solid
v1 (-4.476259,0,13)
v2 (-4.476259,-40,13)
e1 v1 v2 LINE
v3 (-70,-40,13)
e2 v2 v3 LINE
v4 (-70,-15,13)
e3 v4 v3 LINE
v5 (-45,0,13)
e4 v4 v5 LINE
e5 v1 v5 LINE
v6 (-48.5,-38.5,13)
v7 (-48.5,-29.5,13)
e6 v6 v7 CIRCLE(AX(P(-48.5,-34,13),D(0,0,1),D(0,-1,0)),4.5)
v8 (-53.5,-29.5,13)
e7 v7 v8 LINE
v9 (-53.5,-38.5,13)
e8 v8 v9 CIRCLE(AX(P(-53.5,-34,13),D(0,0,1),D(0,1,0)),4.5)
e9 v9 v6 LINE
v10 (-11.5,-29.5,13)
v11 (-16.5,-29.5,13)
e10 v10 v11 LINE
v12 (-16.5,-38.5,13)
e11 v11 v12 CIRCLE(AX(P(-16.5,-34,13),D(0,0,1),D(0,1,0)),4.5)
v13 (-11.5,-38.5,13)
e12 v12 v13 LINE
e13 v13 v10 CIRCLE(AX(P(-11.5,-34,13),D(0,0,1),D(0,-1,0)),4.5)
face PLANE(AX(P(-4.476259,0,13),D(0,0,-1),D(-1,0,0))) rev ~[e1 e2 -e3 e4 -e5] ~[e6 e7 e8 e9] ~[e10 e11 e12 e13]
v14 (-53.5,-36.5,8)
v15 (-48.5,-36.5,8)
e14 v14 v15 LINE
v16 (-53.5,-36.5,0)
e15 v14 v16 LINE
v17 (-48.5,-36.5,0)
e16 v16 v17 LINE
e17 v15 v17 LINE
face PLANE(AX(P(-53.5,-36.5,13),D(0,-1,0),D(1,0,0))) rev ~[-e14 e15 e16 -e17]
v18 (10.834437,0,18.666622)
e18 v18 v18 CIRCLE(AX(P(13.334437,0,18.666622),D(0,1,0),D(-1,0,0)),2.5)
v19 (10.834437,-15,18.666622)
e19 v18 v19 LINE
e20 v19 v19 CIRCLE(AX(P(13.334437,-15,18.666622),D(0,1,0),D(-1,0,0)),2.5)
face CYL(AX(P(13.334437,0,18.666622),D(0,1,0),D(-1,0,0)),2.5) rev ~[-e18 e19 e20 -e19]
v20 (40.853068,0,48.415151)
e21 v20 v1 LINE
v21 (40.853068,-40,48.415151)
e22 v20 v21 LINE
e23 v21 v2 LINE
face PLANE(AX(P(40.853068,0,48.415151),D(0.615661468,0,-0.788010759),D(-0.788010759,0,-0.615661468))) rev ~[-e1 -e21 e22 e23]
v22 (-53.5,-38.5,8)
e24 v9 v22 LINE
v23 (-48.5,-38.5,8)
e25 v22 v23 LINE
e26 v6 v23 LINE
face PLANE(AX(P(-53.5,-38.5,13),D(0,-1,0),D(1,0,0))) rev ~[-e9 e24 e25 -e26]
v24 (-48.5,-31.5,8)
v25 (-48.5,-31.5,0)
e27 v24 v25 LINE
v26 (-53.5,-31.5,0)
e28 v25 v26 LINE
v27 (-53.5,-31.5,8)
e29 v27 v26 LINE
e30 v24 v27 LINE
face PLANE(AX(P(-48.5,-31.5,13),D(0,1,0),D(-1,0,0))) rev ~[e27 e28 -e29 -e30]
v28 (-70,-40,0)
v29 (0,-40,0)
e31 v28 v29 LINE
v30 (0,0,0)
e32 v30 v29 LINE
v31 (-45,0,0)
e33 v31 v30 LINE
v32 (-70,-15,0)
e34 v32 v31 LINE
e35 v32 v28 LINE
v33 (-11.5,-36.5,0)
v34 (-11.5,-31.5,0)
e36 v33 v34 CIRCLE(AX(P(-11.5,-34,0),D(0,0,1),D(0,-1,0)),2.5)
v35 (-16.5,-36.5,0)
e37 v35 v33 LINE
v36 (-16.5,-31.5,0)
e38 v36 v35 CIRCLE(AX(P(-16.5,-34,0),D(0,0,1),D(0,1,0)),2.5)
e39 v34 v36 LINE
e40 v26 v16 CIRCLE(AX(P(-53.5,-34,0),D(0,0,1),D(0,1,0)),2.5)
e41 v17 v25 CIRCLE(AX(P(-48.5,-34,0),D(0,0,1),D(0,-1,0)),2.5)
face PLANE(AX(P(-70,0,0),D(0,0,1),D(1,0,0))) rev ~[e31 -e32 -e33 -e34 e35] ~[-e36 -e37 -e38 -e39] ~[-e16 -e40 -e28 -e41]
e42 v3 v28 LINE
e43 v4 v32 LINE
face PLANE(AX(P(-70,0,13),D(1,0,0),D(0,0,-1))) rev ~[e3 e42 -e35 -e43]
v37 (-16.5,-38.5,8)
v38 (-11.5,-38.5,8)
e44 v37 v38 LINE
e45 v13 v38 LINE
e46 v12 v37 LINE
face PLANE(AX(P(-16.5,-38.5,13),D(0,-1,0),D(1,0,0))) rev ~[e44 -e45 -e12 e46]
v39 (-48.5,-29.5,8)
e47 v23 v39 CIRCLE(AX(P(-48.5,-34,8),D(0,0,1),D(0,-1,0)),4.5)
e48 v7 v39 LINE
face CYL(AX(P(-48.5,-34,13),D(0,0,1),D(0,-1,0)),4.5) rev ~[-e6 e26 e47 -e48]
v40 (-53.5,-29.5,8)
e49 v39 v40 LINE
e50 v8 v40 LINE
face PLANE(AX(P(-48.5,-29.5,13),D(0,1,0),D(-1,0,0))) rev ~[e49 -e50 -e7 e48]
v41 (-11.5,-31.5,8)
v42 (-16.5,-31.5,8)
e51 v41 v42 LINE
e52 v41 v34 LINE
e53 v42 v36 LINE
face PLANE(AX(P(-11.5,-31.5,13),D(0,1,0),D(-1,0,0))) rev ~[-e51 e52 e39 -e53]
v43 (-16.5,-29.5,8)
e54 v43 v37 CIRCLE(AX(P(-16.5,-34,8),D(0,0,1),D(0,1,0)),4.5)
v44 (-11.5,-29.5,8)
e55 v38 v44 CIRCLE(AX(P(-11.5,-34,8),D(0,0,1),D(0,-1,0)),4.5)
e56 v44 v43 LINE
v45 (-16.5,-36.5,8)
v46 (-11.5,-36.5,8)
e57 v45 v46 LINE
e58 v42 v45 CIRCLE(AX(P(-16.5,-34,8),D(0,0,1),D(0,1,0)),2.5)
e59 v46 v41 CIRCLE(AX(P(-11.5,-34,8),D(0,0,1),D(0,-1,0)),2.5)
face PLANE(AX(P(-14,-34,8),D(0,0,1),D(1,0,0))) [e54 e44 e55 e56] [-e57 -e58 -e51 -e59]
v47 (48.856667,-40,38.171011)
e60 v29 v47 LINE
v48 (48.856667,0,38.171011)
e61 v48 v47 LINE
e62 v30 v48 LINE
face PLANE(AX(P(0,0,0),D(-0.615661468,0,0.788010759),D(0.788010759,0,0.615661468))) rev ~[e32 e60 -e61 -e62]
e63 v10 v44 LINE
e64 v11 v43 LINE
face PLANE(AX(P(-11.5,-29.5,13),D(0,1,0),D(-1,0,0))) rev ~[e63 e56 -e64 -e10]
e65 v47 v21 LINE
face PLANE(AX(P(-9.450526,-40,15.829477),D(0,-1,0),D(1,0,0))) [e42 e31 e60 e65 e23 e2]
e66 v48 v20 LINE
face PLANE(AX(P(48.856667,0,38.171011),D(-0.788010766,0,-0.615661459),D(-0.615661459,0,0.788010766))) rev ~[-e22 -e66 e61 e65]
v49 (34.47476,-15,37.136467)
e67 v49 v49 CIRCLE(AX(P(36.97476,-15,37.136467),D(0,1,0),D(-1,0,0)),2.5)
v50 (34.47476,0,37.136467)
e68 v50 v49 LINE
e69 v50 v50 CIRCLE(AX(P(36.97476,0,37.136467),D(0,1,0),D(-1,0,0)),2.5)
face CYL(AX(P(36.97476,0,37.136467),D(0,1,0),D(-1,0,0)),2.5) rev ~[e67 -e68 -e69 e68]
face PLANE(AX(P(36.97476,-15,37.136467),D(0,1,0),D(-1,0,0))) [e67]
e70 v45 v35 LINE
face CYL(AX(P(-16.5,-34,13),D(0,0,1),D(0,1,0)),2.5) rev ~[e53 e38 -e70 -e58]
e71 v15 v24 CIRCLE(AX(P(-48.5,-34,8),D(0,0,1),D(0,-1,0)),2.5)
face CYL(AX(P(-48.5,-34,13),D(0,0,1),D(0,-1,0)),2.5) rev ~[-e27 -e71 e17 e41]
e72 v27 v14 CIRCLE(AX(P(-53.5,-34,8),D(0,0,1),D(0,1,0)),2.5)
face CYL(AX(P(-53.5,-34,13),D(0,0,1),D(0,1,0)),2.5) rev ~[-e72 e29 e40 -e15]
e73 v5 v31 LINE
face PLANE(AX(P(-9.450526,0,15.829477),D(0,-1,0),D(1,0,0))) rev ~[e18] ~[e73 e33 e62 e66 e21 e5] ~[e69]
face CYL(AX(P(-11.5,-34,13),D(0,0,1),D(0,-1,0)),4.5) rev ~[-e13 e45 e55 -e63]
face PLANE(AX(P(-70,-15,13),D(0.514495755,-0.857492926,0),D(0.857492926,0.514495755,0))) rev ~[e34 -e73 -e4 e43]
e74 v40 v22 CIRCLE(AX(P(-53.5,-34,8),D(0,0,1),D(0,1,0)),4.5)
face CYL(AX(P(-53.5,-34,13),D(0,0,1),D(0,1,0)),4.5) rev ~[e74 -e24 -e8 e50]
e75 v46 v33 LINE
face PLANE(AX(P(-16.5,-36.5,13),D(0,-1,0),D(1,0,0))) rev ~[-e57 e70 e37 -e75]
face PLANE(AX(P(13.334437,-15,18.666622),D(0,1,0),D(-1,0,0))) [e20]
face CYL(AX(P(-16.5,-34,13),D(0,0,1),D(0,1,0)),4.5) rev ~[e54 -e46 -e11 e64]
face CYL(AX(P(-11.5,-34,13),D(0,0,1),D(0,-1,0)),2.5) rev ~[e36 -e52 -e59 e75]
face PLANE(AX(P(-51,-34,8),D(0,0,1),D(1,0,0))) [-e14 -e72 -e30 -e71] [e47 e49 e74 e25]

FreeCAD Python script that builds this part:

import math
import FreeCAD as App
import Part
import Sketcher
Q = App.Units.Quantity

doc = App.newDocument("Part")
body = doc.addObject("PartDesign::Body", "Body")

# Sketch on XZ plane
sketch1 = doc.addObject("Sketcher::SketchObject", "Sketch")
body.addObject(sketch1)
sketch1.AttachmentSupport = (doc.XZ_Plane, [""])
sketch1.MapMode = "FlatFace"
sketch1.addGeometry(Part.LineSegment(App.Vector(-70, 13, 0), App.Vector(-70, 0, 0)), False)
sketch1.addGeometry(Part.LineSegment(App.Vector(-70, 0, 0), App.Vector(0, 0, 0)), False)
sketch1.addGeometry(Part.LineSegment(App.Vector(0, 0, 0), App.Vector(49, 38, 0)), False)
sketch1.addGeometry(Part.LineSegment(App.Vector(49, 38, 0), App.Vector(41, 48, 0)), False)
sketch1.addGeometry(Part.LineSegment(App.Vector(41, 48, 0), App.Vector(-4, 13, 0)), False)
sketch1.addGeometry(Part.LineSegment(App.Vector(-4, 13, 0), App.Vector(-70, 13, 0)), False)
sketch1.addConstraint(Sketcher.Constraint("Coincident", 0, 2, 1, 1))
sketch1.addConstraint(Sketcher.Constraint("Coincident", 1, 2, 2, 1))
sketch1.addConstraint(Sketcher.Constraint("Coincident", 2, 2, 3, 1))
sketch1.addConstraint(Sketcher.Constraint("Coincident", 3, 2, 4, 1))
sketch1.addConstraint(Sketcher.Constraint("Coincident", 4, 2, 5, 1))
sketch1.addConstraint(Sketcher.Constraint("Coincident", 5, 2, 0, 1))
sketch1.addConstraint(Sketcher.Constraint("Vertical", 0))
sketch1.addConstraint(Sketcher.Constraint("Horizontal", 1))
sketch1.addConstraint(Sketcher.Constraint("Horizontal", 5))
sketch1.addConstraint(Sketcher.Constraint("Coincident", 1, 2, -1, 1))
sketch1.addConstraint(Sketcher.Constraint("Perpendicular", 2, 3))
sketch1.addConstraint(Sketcher.Constraint("Perpendicular", 3, 4))
sketch1.addConstraint(Sketcher.Constraint("DistanceX", 1, 1, 1, 2, 70.0))
sketch1.addConstraint(Sketcher.Constraint("DistanceY", 0, 2, 0, 1, 13.0))
sketch1.addConstraint(Sketcher.Constraint("Angle", 2, Q("38 deg")))
sketch1.addConstraint(Sketcher.Constraint("Distance", 2, 62.0))
sketch1.addConstraint(Sketcher.Constraint("Distance", 3, 13.0))
pad1 = doc.addObject("PartDesign::Pad", "Pad")
body.addObject(pad1)
pad1.Profile = sketch1
pad1.Length = 40

# Sketch on XY plane
sketch2 = doc.addObject("Sketcher::SketchObject", "Sketch001")
body.addObject(sketch2)
sketch2.AttachmentSupport = (doc.XY_Plane, [""])
sketch2.MapMode = "FlatFace"
sketch2.AttachmentOffset = App.Placement(App.Vector(0, 0, 13), App.Rotation())
sketch2.addGeometry(Part.LineSegment(App.Vector(-16.5, -38.5, 0), App.Vector(-11.5, -38.5, 0)), False)
sketch2.addGeometry(Part.ArcOfCircle(Part.Circle(App.Vector(-11.5, -34, 0), App.Vector(0, 0, 1), 4.5), math.radians(-90), math.radians(90)), False)
sketch2.addGeometry(Part.LineSegment(App.Vector(-11.5, -29.5, 0), App.Vector(-16.5, -29.5, 0)), False)
sketch2.addGeometry(Part.ArcOfCircle(Part.Circle(App.Vector(-16.5, -34, 0), App.Vector(0, 0, 1), 4.5), math.radians(90), math.radians(270)), False)
sketch2.addGeometry(Part.LineSegment(App.Vector(-48.5, -29.5, 0), App.Vector(-53.5, -29.5, 0)), False)
sketch2.addGeometry(Part.ArcOfCircle(Part.Circle(App.Vector(-53.5, -34, 0), App.Vector(0, 0, 1), 4.5), math.radians(90), math.radians(270)), False)
sketch2.addGeometry(Part.LineSegment(App.Vector(-53.5, -38.5, 0), App.Vector(-48.5, -38.5, 0)), False)
sketch2.addGeometry(Part.ArcOfCircle(Part.Circle(App.Vector(-48.5, -34, 0), App.Vector(0, 0, 1), 4.5), math.radians(-90), math.radians(90)), False)
sketch2.addConstraint(Sketcher.Constraint("Tangent", 0, 2, 1, 1))
sketch2.addConstraint(Sketcher.Constraint("Tangent", 1, 2, 2, 1))
sketch2.addConstraint(Sketcher.Constraint("Tangent", 2, 2, 3, 1))
sketch2.addConstraint(Sketcher.Constraint("Tangent", 3, 2, 0, 1))
sketch2.addConstraint(Sketcher.Constraint("Tangent", 4, 2, 5, 1))
sketch2.addConstraint(Sketcher.Constraint("Tangent", 5, 2, 6, 1))
sketch2.addConstraint(Sketcher.Constraint("Tangent", 6, 2, 7, 1))
sketch2.addConstraint(Sketcher.Constraint("Tangent", 7, 2, 4, 1))
sketch2.addConstraint(Sketcher.Constraint("Horizontal", 0))
sketch2.addConstraint(Sketcher.Constraint("Horizontal", 2))
sketch2.addConstraint(Sketcher.Constraint("Horizontal", 4))
sketch2.addConstraint(Sketcher.Constraint("Horizontal", 6))
sketch2.addConstraint(Sketcher.Constraint("Equal", 3, 5))
sketch2.addConstraint(Sketcher.Constraint("Horizontal", 3, 3, 5, 3))
sketch2.addConstraint(Sketcher.Constraint("Equal", 2, 4))
sketch2.addConstraint(Sketcher.Constraint("Radius", 1, 4.5))
sketch2.addConstraint(Sketcher.Constraint("DistanceX", 0, 1, 0, 2, 5.0))
sketch2.addConstraint(Sketcher.Constraint("DistanceY", 1, 3, -1, 1, 34.0))
sketch2.addConstraint(Sketcher.Constraint("DistanceX", 5, 3, 3, 3, 37.0))
sketch2.addConstraint(Sketcher.Constraint("DistanceX", 1, 3, -1, 1, 11.5))
pocket1 = doc.addObject("PartDesign::Pocket", "Pocket")
body.addObject(pocket1)
pocket1.Profile = sketch2
pocket1.Length = 5

# Sketch on XY plane
sketch3 = doc.addObject("Sketcher::SketchObject", "Sketch002")
body.addObject(sketch3)
sketch3.AttachmentSupport = (doc.XY_Plane, [""])
sketch3.MapMode = "FlatFace"
sketch3.AttachmentOffset = App.Placement(App.Vector(0, 0, 13), App.Rotation())
sketch3.addGeometry(Part.LineSegment(App.Vector(-53.5, -36.5, 0), App.Vector(-48.5, -36.5, 0)), False)
sketch3.addGeometry(Part.ArcOfCircle(Part.Circle(App.Vector(-48.5, -34, 0), App.Vector(0, 0, 1), 2.5), math.radians(-90), math.radians(90)), False)
sketch3.addGeometry(Part.LineSegment(App.Vector(-48.5, -31.5, 0), App.Vector(-53.5, -31.5, 0)), False)
sketch3.addGeometry(Part.ArcOfCircle(Part.Circle(App.Vector(-53.5, -34, 0), App.Vector(0, 0, 1), 2.5), math.radians(90), math.radians(270)), False)
sketch3.addGeometry(Part.LineSegment(App.Vector(-11.5, -31.5, 0), App.Vector(-16.5, -31.5, 0)), False)
sketch3.addGeometry(Part.ArcOfCircle(Part.Circle(App.Vector(-16.5, -34, 0), App.Vector(0, 0, 1), 2.5), math.radians(90), math.radians(270)), False)
sketch3.addGeometry(Part.LineSegment(App.Vector(-16.5, -36.5, 0), App.Vector(-11.5, -36.5, 0)), False)
sketch3.addGeometry(Part.ArcOfCircle(Part.Circle(App.Vector(-11.5, -34, 0), App.Vector(0, 0, 1), 2.5), math.radians(-90), math.radians(90)), False)
sketch3.addConstraint(Sketcher.Constraint("Tangent", 0, 2, 1, 1))
sketch3.addConstraint(Sketcher.Constraint("Tangent", 1, 2, 2, 1))
sketch3.addConstraint(Sketcher.Constraint("Tangent", 2, 2, 3, 1))
sketch3.addConstraint(Sketcher.Constraint("Tangent", 3, 2, 0, 1))
sketch3.addConstraint(Sketcher.Constraint("Tangent", 4, 2, 5, 1))
sketch3.addConstraint(Sketcher.Constraint("Tangent", 5, 2, 6, 1))
sketch3.addConstraint(Sketcher.Constraint("Tangent", 6, 2, 7, 1))
sketch3.addConstraint(Sketcher.Constraint("Tangent", 7, 2, 4, 1))
sketch3.addConstraint(Sketcher.Constraint("Horizontal", 0))
sketch3.addConstraint(Sketcher.Constraint("Horizontal", 2))
sketch3.addConstraint(Sketcher.Constraint("Horizontal", 4))
sketch3.addConstraint(Sketcher.Constraint("Horizontal", 6))
sketch3.addConstraint(Sketcher.Constraint("Equal", 3, 5))
sketch3.addConstraint(Sketcher.Constraint("Horizontal", 3, 3, 5, 3))
sketch3.addConstraint(Sketcher.Constraint("Equal", 2, 4))
sketch3.addConstraint(Sketcher.Constraint("Radius", 1, 2.5))
sketch3.addConstraint(Sketcher.Constraint("DistanceX", 0, 1, 0, 2, 5.0))
sketch3.addConstraint(Sketcher.Constraint("DistanceY", 1, 3, -1, 1, 34.0))
sketch3.addConstraint(Sketcher.Constraint("DistanceX", 1, 3, 5, 3, 32.0))
sketch3.addConstraint(Sketcher.Constraint("DistanceX", 1, 3, -1, 1, 48.5))
pocket2 = doc.addObject("PartDesign::Pocket", "Pocket001")
body.addObject(pocket2)
pocket2.Profile = sketch3
pocket2.Length = 25

# Sketch on XY plane
sketch4 = doc.addObject("Sketcher::SketchObject", "Sketch003")
body.addObject(sketch4)
sketch4.AttachmentSupport = (doc.XY_Plane, [""])
sketch4.MapMode = "FlatFace"
sketch4.AttachmentOffset = App.Placement(App.Vector(0, 0, 13), App.Rotation())
sketch4.addGeometry(Part.LineSegment(App.Vector(-70, 0, 0), App.Vector(-70, -15, 0)), False)
sketch4.addGeometry(Part.LineSegment(App.Vector(-70, -15, 0), App.Vector(-45, 0, 0)), False)
sketch4.addGeometry(Part.LineSegment(App.Vector(-45, 0, 0), App.Vector(-70, 0, 0)), False)
sketch4.addConstraint(Sketcher.Constraint("Coincident", 0, 2, 1, 1))
sketch4.addConstraint(Sketcher.Constraint("Coincident", 1, 2, 2, 1))
sketch4.addConstraint(Sketcher.Constraint("Coincident", 2, 2, 0, 1))
sketch4.addConstraint(Sketcher.Constraint("Vertical", 0))
sketch4.addConstraint(Sketcher.Constraint("Horizontal", 2))
sketch4.addConstraint(Sketcher.Constraint("PointOnObject", 1, 2, -1))
sketch4.addConstraint(Sketcher.Constraint("DistanceX", 2, 2, 2, 1, 25.0))
sketch4.addConstraint(Sketcher.Constraint("DistanceY", 0, 2, 0, 1, 15.0))
sketch4.addConstraint(Sketcher.Constraint("DistanceX", 0, 2, -1, 1, 70.0))
pocket3 = doc.addObject("PartDesign::Pocket", "Pocket002")
body.addObject(pocket3)
pocket3.Profile = sketch4
pocket3.Length = 25

# Sketch on XZ plane
sketch5 = doc.addObject("Sketcher::SketchObject", "Sketch004")
body.addObject(sketch5)
sketch5.AttachmentSupport = (doc.XZ_Plane, [""])
sketch5.MapMode = "FlatFace"
sketch5.addGeometry(Part.Circle(App.Vector(37, 37.1, 0), App.Vector(0, 0, 1), 2.5), False)
sketch5.addGeometry(Part.Circle(App.Vector(13.3, 18.7, 0), App.Vector(0, 0, 1), 2.5), False)
sketch5.addConstraint(Sketcher.Constraint("Equal", 0, 1))
sketch5.addConstraint(Sketcher.Constraint("Diameter", 0, 5.0))
sketch5.addConstraint(Sketcher.Constraint("DistanceX", -1, 1, 0, 3, 36.97476))
sketch5.addConstraint(Sketcher.Constraint("DistanceY", -1, 1, 1, 3, 18.666622))
sketch5.addConstraint(Sketcher.Constraint("DistanceY", -1, 1, 0, 3, 37.136467))
sketch5.addConstraint(Sketcher.Constraint("DistanceX", -1, 1, 1, 3, 13.334437))
pocket4 = doc.addObject("PartDesign::Pocket", "Pocket003")
body.addObject(pocket4)
pocket4.Profile = sketch5
pocket4.Length = 15
pocket4.Reversed = True

doc.recompute()
